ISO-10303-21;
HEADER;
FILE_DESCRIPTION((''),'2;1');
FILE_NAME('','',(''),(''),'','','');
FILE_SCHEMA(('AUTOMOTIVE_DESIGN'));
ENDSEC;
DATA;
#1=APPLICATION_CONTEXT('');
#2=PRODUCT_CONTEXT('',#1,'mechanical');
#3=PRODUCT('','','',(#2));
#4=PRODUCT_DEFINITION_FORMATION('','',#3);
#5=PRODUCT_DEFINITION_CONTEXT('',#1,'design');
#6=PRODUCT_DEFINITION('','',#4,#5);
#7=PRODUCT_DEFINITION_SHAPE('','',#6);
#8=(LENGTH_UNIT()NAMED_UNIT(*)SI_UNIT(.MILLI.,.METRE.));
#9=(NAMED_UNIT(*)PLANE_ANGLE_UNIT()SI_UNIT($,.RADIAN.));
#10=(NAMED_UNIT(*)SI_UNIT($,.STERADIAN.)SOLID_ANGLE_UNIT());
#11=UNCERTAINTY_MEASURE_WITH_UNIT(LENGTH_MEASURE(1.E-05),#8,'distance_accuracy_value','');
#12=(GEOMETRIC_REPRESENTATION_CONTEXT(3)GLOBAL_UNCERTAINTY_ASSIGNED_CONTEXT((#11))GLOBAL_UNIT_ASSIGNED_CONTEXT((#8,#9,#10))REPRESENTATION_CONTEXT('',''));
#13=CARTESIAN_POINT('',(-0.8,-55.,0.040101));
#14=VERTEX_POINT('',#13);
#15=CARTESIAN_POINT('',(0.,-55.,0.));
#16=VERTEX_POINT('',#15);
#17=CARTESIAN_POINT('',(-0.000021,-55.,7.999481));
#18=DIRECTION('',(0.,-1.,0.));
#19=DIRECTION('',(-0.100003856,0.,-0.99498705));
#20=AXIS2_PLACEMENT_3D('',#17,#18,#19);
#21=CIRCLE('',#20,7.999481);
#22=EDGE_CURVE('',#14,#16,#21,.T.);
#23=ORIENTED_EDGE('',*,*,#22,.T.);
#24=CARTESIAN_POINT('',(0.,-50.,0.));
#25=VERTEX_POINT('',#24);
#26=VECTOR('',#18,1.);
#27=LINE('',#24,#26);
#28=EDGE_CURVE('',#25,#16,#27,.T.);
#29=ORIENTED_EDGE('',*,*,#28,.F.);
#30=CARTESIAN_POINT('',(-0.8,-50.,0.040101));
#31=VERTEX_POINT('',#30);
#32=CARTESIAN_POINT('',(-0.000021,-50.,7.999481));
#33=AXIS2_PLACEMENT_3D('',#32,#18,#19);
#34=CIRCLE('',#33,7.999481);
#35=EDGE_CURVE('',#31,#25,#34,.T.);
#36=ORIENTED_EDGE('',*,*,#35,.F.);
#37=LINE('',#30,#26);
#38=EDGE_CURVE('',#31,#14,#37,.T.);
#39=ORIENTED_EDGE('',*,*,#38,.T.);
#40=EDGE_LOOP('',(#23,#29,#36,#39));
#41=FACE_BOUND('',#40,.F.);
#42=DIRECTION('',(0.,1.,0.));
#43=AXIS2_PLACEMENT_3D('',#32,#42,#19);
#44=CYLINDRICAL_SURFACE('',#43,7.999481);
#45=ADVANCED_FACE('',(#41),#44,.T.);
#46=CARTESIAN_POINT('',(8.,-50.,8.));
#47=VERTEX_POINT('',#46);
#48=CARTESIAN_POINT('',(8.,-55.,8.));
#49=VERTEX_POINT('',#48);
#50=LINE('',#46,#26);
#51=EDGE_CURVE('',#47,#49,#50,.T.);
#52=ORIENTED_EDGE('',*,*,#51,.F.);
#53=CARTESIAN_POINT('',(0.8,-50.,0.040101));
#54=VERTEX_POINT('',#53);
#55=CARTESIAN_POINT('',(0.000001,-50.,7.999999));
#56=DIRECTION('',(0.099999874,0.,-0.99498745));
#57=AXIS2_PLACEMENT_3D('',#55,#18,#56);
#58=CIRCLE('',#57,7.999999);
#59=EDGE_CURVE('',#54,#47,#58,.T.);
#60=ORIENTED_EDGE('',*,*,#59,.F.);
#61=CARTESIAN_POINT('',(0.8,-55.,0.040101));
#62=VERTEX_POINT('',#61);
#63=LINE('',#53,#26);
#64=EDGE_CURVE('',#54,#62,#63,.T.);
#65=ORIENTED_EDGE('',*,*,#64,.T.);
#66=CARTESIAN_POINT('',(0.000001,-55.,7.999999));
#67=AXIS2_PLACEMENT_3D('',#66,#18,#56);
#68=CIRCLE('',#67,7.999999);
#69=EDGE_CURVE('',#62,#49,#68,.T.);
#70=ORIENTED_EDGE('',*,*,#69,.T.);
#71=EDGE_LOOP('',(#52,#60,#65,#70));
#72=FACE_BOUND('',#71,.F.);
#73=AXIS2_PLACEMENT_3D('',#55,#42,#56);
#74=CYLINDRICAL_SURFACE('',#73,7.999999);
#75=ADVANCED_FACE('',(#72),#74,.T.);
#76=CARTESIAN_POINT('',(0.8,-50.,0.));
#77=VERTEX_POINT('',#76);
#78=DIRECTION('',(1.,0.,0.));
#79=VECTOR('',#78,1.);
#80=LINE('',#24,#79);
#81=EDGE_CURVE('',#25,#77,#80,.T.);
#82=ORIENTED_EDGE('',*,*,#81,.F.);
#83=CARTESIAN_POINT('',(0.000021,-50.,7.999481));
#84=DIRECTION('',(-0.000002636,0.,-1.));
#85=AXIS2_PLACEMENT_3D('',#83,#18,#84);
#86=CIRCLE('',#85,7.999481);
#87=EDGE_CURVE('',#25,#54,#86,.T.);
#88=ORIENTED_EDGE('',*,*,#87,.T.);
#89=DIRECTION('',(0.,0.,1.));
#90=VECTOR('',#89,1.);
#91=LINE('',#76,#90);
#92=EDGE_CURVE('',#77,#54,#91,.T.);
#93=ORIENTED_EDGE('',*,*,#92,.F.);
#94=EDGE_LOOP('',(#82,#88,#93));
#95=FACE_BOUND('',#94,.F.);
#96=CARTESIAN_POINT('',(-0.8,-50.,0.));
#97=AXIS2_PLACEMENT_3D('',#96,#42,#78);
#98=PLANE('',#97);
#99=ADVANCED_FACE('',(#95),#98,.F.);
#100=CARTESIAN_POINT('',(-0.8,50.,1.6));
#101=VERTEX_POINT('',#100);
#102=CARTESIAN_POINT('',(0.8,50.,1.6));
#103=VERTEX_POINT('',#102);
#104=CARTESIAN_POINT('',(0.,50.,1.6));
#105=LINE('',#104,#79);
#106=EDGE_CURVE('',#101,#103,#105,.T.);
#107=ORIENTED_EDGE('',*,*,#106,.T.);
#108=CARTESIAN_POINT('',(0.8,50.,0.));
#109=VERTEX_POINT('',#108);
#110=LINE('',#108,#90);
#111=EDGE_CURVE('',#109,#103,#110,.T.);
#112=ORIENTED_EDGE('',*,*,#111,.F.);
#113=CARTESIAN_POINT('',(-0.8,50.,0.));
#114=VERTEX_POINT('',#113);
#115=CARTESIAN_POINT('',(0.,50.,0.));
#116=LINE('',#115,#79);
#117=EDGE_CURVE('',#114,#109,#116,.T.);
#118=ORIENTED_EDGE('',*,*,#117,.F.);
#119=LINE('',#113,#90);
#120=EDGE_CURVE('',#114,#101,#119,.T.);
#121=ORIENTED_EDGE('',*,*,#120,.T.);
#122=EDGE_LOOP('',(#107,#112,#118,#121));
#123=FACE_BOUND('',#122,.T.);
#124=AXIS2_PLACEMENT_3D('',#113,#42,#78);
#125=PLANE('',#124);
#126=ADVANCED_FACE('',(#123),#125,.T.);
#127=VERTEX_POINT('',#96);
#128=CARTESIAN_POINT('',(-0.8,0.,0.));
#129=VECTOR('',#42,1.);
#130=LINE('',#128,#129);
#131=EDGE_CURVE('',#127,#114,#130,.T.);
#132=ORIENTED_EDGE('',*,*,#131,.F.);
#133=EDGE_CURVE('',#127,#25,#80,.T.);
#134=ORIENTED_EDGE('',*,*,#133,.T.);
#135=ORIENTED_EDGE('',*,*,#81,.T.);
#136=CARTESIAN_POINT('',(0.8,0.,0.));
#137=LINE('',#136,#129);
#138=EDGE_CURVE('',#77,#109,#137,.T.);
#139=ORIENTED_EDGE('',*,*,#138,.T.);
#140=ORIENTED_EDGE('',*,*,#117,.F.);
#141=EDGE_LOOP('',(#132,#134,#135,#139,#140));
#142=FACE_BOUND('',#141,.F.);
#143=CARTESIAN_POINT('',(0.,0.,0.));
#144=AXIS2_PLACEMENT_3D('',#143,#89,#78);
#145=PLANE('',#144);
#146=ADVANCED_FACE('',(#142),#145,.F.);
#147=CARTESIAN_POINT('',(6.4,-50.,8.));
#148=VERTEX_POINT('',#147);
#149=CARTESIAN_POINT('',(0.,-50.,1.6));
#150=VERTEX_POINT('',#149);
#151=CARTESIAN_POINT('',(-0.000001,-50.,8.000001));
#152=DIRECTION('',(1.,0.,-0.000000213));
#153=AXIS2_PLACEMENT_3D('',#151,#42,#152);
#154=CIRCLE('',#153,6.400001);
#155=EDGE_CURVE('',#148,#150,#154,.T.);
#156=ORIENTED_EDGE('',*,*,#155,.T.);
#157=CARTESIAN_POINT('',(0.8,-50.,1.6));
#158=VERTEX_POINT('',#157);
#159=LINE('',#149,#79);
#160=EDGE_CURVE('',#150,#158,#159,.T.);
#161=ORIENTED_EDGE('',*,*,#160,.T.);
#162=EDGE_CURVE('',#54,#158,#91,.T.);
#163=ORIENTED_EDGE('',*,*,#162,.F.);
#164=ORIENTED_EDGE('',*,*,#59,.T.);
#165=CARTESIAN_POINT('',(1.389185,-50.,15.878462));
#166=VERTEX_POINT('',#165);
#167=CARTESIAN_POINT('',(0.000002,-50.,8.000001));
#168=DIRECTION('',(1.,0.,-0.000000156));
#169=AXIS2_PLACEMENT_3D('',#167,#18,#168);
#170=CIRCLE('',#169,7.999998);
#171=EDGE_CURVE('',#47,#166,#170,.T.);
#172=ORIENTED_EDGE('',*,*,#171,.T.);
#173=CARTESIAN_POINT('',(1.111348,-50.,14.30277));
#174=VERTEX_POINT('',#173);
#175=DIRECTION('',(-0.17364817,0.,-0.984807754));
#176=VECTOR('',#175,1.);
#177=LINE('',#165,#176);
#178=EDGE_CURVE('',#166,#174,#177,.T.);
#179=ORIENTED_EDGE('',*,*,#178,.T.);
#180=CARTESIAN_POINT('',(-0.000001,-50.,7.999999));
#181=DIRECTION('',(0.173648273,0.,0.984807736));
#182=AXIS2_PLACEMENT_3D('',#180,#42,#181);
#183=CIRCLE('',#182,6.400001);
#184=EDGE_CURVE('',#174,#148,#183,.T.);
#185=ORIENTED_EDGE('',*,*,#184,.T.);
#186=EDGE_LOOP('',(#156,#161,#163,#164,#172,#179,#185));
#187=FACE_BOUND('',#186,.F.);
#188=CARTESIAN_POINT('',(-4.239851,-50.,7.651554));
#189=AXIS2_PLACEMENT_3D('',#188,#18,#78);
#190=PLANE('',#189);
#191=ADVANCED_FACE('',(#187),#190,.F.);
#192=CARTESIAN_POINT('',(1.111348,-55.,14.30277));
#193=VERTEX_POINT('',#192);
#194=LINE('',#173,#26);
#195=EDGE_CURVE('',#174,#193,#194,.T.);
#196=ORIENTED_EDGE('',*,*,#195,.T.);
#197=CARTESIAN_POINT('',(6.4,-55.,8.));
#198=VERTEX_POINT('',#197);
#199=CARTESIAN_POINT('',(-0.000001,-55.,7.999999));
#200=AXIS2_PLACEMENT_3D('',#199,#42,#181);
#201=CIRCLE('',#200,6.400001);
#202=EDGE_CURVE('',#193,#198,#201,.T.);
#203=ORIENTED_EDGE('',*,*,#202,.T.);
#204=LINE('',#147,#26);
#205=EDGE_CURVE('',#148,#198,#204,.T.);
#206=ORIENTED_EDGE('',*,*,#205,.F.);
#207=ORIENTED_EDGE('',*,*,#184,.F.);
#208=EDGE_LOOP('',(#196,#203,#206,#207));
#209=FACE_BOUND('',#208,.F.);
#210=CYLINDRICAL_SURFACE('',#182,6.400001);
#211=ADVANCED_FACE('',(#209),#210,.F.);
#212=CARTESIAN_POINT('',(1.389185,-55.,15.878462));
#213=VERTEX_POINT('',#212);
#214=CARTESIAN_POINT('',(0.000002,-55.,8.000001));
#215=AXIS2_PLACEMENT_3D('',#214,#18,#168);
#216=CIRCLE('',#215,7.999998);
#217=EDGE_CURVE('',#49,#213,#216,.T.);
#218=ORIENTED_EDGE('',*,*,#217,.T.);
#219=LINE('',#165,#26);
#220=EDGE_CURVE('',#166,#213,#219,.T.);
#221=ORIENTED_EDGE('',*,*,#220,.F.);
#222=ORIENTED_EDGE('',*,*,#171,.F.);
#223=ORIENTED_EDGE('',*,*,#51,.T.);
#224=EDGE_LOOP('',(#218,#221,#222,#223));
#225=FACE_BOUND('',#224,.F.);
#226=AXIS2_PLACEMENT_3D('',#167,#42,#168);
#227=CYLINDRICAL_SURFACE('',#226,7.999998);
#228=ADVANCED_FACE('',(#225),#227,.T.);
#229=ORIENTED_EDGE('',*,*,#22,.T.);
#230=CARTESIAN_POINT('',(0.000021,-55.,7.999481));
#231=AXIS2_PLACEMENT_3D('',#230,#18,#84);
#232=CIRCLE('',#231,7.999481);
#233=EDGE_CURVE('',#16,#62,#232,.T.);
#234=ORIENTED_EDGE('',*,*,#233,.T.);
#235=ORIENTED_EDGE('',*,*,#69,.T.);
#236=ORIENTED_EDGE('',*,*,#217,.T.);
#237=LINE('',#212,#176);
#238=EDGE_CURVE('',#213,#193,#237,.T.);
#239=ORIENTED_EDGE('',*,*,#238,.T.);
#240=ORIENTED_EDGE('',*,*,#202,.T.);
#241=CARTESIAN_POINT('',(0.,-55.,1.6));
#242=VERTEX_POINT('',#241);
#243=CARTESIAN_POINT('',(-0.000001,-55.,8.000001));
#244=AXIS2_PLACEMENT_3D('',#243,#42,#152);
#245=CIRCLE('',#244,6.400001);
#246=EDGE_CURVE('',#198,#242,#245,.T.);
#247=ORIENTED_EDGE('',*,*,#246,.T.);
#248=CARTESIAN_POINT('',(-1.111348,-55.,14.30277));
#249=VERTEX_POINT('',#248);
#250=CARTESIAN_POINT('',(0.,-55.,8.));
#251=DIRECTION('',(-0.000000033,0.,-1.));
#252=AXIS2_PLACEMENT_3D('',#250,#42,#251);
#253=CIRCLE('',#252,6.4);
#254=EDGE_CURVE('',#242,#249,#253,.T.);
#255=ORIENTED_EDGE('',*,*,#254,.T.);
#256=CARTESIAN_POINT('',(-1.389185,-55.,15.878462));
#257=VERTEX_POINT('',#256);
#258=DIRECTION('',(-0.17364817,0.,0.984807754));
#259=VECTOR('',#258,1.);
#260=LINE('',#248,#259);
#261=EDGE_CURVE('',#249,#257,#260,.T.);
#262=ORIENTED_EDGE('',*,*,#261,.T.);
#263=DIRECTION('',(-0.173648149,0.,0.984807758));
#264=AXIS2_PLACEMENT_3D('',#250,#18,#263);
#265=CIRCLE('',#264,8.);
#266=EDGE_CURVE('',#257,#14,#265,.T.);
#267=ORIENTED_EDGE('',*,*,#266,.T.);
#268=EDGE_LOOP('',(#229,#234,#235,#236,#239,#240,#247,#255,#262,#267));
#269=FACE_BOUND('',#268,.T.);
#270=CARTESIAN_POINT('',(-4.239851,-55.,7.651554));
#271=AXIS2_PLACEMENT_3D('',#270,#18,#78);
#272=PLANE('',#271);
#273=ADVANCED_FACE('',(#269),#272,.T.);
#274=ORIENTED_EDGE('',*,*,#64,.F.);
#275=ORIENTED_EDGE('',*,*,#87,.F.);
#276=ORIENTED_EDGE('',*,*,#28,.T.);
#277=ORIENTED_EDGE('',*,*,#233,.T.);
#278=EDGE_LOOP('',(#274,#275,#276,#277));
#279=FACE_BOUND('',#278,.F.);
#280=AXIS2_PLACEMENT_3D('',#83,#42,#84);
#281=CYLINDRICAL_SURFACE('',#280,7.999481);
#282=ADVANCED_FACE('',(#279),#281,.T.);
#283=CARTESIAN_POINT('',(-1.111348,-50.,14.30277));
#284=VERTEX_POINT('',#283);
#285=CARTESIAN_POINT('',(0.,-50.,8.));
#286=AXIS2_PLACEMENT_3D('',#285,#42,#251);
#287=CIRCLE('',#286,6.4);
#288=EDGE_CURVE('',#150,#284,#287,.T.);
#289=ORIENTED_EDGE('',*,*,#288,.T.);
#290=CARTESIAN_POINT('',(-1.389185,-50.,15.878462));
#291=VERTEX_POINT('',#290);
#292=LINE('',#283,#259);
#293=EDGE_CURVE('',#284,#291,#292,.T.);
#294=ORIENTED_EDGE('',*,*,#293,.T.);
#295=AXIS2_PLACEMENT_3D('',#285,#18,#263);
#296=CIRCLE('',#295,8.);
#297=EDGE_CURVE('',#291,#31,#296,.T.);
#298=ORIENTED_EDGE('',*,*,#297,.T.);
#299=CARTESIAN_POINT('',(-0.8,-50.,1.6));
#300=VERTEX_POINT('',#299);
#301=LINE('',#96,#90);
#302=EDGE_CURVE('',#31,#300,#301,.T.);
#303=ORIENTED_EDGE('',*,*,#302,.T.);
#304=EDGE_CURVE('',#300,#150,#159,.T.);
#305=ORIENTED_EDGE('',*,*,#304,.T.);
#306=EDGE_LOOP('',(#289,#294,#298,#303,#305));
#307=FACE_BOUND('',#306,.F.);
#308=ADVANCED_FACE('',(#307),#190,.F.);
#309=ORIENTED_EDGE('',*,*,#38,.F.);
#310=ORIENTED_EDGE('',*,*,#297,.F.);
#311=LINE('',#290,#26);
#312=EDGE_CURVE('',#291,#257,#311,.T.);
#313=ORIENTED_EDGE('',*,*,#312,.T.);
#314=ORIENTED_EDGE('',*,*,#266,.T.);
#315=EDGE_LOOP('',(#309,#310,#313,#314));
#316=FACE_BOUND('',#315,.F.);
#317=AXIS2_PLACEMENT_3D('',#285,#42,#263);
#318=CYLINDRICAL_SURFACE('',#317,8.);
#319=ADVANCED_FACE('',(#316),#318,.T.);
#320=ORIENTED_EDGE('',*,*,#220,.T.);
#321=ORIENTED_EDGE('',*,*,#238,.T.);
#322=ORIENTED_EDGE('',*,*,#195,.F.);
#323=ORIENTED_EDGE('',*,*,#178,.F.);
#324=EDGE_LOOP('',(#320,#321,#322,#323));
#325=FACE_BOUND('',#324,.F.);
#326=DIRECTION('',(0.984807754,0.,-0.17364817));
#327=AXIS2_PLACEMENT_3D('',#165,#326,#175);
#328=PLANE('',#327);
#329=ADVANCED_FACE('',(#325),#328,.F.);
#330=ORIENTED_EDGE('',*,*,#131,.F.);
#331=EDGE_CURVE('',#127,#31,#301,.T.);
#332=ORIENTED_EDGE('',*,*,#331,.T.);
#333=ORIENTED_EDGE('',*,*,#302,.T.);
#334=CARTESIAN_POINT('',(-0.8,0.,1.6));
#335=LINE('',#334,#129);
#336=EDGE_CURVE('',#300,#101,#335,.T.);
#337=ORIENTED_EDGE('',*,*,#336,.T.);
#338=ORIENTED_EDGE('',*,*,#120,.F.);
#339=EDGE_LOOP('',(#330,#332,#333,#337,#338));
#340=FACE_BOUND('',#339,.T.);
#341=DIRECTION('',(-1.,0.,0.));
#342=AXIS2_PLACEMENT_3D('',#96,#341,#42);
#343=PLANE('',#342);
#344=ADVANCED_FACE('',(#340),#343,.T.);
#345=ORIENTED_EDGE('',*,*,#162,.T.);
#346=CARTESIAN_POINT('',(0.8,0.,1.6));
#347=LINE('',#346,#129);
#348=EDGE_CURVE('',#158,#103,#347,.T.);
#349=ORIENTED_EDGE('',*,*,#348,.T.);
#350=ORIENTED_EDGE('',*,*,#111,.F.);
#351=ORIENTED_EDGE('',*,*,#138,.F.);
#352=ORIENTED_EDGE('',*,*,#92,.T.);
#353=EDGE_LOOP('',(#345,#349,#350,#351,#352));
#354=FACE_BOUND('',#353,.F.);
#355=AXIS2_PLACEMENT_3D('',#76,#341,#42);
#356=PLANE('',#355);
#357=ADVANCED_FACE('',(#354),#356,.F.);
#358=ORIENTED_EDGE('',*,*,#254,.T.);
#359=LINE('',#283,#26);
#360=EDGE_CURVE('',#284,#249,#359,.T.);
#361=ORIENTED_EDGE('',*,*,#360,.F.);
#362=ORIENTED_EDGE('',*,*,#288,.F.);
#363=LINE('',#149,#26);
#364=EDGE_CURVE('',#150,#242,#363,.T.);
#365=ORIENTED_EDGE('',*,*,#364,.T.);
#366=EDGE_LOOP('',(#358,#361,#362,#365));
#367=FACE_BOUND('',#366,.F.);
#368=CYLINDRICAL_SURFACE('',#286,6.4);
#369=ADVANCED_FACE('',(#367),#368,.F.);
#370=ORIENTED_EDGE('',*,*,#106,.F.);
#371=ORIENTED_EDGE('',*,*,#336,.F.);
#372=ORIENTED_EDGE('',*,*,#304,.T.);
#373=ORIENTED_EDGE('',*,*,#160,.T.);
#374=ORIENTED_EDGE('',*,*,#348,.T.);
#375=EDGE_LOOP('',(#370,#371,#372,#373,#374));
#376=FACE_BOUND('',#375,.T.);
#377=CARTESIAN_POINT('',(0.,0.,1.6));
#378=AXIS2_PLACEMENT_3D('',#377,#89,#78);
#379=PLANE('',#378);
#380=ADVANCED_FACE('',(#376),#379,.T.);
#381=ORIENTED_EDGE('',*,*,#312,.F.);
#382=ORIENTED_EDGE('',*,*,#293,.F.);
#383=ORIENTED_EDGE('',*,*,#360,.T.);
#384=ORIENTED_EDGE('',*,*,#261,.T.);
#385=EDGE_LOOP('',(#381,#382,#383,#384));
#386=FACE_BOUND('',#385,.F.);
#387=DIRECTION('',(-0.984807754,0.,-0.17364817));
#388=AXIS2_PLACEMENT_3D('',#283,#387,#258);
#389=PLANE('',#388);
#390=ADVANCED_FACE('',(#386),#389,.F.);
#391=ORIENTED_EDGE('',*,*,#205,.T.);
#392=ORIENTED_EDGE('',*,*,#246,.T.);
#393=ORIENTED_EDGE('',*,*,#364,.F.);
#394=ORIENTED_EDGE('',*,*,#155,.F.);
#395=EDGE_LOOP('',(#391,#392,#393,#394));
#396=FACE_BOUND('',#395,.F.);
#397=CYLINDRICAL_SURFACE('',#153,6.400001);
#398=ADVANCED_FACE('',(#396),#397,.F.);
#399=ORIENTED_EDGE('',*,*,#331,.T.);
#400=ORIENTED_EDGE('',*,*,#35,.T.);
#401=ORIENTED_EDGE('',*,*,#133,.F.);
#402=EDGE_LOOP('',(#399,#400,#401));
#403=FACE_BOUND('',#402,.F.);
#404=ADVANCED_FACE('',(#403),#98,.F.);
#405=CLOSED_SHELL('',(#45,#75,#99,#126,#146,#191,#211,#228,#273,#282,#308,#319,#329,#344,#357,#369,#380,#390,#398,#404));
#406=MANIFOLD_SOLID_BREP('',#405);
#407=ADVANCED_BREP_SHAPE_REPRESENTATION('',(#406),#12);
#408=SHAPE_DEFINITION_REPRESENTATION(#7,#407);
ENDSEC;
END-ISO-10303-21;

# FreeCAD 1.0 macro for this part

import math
import FreeCAD as App
import Part
import Sketcher
Q = App.Units.Quantity

doc = App.newDocument("Part")
body = doc.addObject("PartDesign::Body", "Body")

sketch1 = body.newObject("Sketcher::SketchObject", "Sketch")
sketch1.AttachmentSupport = (doc.getObject("XY_Plane"), [""])
sketch1.MapMode = "FlatFace"
sketch1.addGeometry([
    Part.LineSegment(App.Vector(-0.8, 50, 0), App.Vector(-0.8, -50, 0)),
    Part.LineSegment(App.Vector(-0.8, -50, 0), App.Vector(0.8, -50, 0)),
    Part.LineSegment(App.Vector(0.8, -50, 0), App.Vector(0.8, 50, 0)),
    Part.LineSegment(App.Vector(0.8, 50, 0), App.Vector(-0.8, 50, 0)),
], False)
sketch1.addConstraint([
    Sketcher.Constraint("Coincident", 0, 2, 1, 1),
    Sketcher.Constraint("Coincident", 1, 2, 2, 1),
    Sketcher.Constraint("Coincident", 2, 2, 3, 1),
    Sketcher.Constraint("Coincident", 3, 2, 0, 1),
    Sketcher.Constraint("Vertical", 0),
    Sketcher.Constraint("Horizontal", 1),
    Sketcher.Constraint("Vertical", 2),
    Sketcher.Constraint("Horizontal", 3),
    Sketcher.Constraint("Symmetric", 0, 2, 2, 2, -1, 1),
    Sketcher.Constraint("DistanceY", 0, 2, 0, 1, 100.0),
    Sketcher.Constraint("DistanceX", 1, 1, 1, 2, 1.6),
])
pad1 = body.newObject("PartDesign::Pad", "Pad")
pad1.Profile = sketch1
pad1.Length = 1.6

sketch2 = body.newObject("Sketcher::SketchObject", "Sketch001")
sketch2.AttachmentSupport = (doc.getObject("XZ_Plane"), [""])
sketch2.MapMode = "FlatFace"
sketch2.AttachmentOffset = App.Placement(App.Vector(0, 0, 50), App.Rotation())
sketch2.addGeometry([
    Part.LineSegment(App.Vector(-1.1, 14.3, 0), App.Vector(-1.4, 15.9, 0)),
    Part.ArcOfCircle(Part.Circle(App.Vector(0, 8, 0), App.Vector(0, 0, 1), 8), math.radians(100), math.radians(264)),
    Part.ArcOfCircle(Part.Circle(App.Vector(0, 8, 0), App.Vector(0, 0, 1), 8), math.radians(-95.74), math.radians(-90)),
    Part.ArcOfCircle(Part.Circle(App.Vector(0, 8, 0), App.Vector(0, 0, 1), 8), math.radians(-90), math.radians(-84.26)),
    Part.ArcOfCircle(Part.Circle(App.Vector(0, 8, 0), App.Vector(0, 0, 1), 8), math.radians(-84), math.radians(0)),
    Part.ArcOfCircle(Part.Circle(App.Vector(0, 8, 0), App.Vector(0, 0, 1), 8), math.radians(0), math.radians(80)),
    Part.LineSegment(App.Vector(1.4, 15.9, 0), App.Vector(1.1, 14.3, 0)),
    Part.ArcOfCircle(Part.Circle(App.Vector(0, 8, 0), App.Vector(0, 0, 1), 6.4), math.radians(0), math.radians(80)),
    Part.ArcOfCircle(Part.Circle(App.Vector(0, 8, 0), App.Vector(0, 0, 1), 6.4), math.radians(-90), math.radians(0)),
    Part.ArcOfCircle(Part.Circle(App.Vector(0, 8, 0), App.Vector(0, 0, 1), 6.4), math.radians(100), math.radians(270)),
], False)
sketch2.addConstraint([
    Sketcher.Constraint("Coincident", 0, 2, 1, 1),
    Sketcher.Constraint("Coincident", 1, 2, 2, 1),
    Sketcher.Constraint("Coincident", 2, 2, 3, 1),
    Sketcher.Constraint("Coincident", 3, 2, 4, 1),
    Sketcher.Constraint("Tangent", 4, 2, 5, 1),
    Sketcher.Constraint("Coincident", 5, 2, 6, 1),
    Sketcher.Constraint("Coincident", 6, 2, 7, 2),
    Sketcher.Constraint("Tangent", 7, 1, 8, 2),
    Sketcher.Constraint("Tangent", 8, 1, 9, 2),
    Sketcher.Constraint("Coincident", 9, 1, 0, 1),
    Sketcher.Constraint("Coincident", 2, 2, -1, 1),
    Sketcher.Constraint("Coincident", 4, 3, 1, 3),
    Sketcher.Constraint("Coincident", 7, 3, 1, 3),
    Sketcher.Constraint("Coincident", 9, 3, 1, 3),
    Sketcher.Constraint("Equal", 2, 3),
    Sketcher.Constraint("Equal", 1, 4),
    Sketcher.Constraint("Equal", 4, 5),
    Sketcher.Constraint("Symmetric", 1, 2, 3, 2, -2),
    Sketcher.Constraint("PointOnObject", 8, 1, -2),
    Sketcher.Constraint("Horizontal", 9, 3, 4, 2),
    Sketcher.Constraint("Horizontal", 0, 2, 5, 2),
    Sketcher.Constraint("Horizontal", 4, 2, 7, 1),
    Sketcher.Constraint("Horizontal", 6, 2, 9, 1),
    Sketcher.Constraint("Radius", 1, 8.0),
    Sketcher.Constraint("Radius", 7, 6.400001),
    Sketcher.Constraint("Angle", 0, Q("100 deg")),
    Sketcher.Constraint("DistanceY", -1, 1, 1, 3, 8.0),
    Sketcher.Constraint("DistanceX", 1, 2, -1, 1, 0.8),
    Sketcher.Constraint("Radius", 2, 7.999481),
    Sketcher.Constraint("DistanceY", -1, 1, 5, 2, 15.878462),
])
pad2 = body.newObject("PartDesign::Pad", "Pad001")
pad2.Profile = sketch2
pad2.Length = 5

doc.recompute()
